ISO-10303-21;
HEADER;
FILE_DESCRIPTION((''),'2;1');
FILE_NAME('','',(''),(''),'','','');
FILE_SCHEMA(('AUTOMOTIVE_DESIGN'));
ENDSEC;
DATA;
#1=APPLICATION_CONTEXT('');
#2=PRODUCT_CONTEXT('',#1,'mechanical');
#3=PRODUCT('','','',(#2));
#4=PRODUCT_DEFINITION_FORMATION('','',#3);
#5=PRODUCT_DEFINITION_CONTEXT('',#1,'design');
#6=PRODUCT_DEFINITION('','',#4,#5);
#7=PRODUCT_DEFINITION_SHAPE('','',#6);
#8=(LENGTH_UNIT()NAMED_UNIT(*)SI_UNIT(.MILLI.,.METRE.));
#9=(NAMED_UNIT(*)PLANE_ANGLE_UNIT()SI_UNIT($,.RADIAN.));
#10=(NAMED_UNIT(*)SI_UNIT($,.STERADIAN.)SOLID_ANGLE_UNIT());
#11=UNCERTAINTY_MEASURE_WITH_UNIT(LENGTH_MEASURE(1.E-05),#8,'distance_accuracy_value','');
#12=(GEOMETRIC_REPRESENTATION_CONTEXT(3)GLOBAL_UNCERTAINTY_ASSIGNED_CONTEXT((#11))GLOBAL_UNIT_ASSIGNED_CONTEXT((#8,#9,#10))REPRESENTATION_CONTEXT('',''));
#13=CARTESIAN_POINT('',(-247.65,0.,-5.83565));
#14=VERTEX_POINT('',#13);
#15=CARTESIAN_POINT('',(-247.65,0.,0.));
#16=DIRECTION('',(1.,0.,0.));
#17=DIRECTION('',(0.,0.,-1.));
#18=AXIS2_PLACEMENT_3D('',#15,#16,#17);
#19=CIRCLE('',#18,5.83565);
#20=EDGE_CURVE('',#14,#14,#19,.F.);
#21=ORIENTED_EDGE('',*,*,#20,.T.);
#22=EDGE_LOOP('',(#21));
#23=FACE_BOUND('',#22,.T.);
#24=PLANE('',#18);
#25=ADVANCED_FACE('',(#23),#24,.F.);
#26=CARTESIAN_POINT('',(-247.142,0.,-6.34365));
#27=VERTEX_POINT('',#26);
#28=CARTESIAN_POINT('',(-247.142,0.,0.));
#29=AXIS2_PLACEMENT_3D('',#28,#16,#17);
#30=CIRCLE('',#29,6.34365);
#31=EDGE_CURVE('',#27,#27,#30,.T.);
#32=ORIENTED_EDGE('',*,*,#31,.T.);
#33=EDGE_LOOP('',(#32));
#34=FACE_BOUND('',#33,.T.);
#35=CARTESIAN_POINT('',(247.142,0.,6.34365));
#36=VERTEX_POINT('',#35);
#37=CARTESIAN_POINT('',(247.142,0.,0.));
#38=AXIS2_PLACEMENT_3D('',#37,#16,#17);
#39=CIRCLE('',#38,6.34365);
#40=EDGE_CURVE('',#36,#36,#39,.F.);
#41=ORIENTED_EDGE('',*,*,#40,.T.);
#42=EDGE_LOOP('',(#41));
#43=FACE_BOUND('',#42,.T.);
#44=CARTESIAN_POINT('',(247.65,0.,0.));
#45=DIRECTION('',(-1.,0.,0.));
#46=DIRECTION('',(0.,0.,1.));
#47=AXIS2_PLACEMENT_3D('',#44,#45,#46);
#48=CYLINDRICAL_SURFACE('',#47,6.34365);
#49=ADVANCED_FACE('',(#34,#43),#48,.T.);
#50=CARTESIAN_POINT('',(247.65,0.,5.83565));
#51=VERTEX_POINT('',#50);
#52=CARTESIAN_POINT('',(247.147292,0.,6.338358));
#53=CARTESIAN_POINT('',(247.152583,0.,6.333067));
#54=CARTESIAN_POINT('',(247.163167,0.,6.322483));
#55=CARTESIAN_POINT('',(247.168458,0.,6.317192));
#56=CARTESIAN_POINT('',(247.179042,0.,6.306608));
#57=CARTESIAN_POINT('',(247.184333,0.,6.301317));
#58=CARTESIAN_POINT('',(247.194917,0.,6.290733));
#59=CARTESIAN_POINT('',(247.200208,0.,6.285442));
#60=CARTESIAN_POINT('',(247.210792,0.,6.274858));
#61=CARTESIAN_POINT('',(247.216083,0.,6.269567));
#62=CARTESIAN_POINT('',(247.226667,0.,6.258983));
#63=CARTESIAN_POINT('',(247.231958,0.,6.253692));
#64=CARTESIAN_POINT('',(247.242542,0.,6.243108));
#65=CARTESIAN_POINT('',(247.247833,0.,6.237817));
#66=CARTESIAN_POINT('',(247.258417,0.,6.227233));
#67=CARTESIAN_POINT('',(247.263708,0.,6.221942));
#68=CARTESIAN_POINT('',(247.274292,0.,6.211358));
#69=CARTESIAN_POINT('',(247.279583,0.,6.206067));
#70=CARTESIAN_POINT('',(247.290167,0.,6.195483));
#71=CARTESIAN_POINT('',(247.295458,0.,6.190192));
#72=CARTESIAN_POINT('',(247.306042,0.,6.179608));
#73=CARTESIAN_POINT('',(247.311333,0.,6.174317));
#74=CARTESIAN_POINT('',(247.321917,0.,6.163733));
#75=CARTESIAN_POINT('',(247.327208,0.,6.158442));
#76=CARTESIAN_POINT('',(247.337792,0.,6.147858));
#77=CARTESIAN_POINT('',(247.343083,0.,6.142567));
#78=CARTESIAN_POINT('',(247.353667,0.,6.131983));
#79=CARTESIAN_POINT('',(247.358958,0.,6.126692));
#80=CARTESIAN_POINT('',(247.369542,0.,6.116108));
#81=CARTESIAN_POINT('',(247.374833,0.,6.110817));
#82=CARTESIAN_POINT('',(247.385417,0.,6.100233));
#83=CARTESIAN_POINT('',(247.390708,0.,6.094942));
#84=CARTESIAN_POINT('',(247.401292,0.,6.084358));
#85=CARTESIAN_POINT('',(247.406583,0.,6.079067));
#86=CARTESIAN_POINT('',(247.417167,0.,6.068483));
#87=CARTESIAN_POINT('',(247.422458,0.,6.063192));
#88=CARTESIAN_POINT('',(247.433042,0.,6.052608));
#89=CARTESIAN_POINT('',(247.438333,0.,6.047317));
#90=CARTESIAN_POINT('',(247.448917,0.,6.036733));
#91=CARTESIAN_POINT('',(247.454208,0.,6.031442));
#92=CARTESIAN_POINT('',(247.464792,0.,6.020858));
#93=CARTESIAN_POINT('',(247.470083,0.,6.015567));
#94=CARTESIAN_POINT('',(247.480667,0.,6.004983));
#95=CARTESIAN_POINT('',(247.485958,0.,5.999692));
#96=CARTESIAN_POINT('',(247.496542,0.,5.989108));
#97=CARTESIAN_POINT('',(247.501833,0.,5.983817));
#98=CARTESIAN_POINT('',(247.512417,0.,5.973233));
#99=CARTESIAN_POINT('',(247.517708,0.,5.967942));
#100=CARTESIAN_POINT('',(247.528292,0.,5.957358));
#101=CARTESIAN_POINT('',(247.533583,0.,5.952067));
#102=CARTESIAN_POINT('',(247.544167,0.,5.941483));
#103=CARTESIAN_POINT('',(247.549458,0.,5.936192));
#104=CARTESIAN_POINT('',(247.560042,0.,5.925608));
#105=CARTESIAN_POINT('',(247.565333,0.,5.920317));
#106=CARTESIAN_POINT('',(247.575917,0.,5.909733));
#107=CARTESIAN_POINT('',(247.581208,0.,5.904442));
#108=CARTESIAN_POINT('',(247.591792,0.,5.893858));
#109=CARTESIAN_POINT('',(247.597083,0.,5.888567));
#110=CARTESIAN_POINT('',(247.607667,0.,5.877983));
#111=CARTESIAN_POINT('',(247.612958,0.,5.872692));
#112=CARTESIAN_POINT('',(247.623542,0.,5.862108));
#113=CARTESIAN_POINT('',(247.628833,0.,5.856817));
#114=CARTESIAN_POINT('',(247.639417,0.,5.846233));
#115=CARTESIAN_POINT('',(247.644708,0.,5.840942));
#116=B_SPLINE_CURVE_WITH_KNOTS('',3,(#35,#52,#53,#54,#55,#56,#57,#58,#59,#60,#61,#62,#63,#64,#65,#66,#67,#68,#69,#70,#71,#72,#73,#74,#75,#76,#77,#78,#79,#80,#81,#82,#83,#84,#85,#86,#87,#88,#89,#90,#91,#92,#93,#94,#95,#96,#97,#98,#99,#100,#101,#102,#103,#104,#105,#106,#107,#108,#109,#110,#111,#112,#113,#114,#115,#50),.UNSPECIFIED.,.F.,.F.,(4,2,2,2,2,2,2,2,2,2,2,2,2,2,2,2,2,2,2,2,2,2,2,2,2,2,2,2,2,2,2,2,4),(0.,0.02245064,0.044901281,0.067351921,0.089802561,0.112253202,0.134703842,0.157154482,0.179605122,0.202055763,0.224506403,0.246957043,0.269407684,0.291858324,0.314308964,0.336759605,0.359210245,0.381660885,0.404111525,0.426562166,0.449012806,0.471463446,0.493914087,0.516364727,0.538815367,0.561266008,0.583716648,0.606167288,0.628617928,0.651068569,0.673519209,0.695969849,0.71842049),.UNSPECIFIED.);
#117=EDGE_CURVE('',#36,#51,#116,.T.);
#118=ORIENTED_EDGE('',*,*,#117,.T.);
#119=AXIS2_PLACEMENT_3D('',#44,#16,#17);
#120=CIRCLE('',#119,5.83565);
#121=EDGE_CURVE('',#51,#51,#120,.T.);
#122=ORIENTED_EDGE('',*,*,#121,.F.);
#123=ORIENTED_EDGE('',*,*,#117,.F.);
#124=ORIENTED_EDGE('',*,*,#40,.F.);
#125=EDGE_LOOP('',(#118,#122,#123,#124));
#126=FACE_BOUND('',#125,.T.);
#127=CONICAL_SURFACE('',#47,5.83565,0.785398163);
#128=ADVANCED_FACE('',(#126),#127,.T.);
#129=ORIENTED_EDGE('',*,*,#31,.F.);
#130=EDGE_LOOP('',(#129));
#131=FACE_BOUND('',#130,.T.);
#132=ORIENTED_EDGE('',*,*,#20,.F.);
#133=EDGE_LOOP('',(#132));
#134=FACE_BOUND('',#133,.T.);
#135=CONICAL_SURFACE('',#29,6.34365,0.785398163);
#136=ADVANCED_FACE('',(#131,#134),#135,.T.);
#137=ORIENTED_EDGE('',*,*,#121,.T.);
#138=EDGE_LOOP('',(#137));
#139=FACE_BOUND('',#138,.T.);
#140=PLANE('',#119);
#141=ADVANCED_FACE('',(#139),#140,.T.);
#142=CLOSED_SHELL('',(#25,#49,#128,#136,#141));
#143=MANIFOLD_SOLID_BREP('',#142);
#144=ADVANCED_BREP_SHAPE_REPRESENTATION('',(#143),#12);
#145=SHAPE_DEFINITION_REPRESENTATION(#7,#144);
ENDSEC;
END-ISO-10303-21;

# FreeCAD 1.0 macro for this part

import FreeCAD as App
import Part
import Sketcher
from FreeCAD import Vector
Q = App.Units.Quantity


def edges_at(feature, points):
    """Names of the edges that pass closest to the given points."""
    edges = feature.Shape.Edges
    near = lambda p: min(range(len(edges)), key=lambda i: edges[i].distToShape(Part.Vertex(*p))[0])
    return sorted({f"Edge{near(p) + 1}" for p in points})

doc = App.newDocument("Part")
params = doc.addObject("Spreadsheet::Sheet", "Params")
for row, (alias, value) in enumerate([
    ("pad1_length", "19.5 in"),
    ("chamfer_size", "0.02 in"),
], start=1):
    params.set(f"A{row}", alias)
    params.set(f"B{row}", "=" + value)
    params.setAlias(f"B{row}", alias)

body = doc.addObject("PartDesign::Body", "Body")

# Sketch on YZ plane
sketch1 = body.newObject("Sketcher::SketchObject", "Sketch")
sketch1.AttachmentSupport = (doc.getObject("YZ_Plane"), [""])
sketch1.MapMode = "FlatFace"
sketch1.addGeometry(Part.Circle(Vector(0, 0, 0), Vector(0, 0, 1), 6), False)
sketch1.addConstraint(Sketcher.Constraint("Coincident", 0, 3, -1, 1))
sketch1.addConstraint(Sketcher.Constraint("Diameter", 0, Q("0.4995 in")))
pad1 = body.newObject("PartDesign::Pad", "Pad")
pad1.Profile = sketch1
pad1.setExpression("Length", "Params.pad1_length")
pad1.Midplane = True
doc.recompute()

chamfer = body.newObject("PartDesign::Chamfer", "Chamfer")
chamfer.Base = (pad1, edges_at(pad1, [(-247.65, 0, 6.344), (247.65, 0, 6.344)]))
chamfer.setExpression("Size", "Params.chamfer_size")

doc.recompute()
